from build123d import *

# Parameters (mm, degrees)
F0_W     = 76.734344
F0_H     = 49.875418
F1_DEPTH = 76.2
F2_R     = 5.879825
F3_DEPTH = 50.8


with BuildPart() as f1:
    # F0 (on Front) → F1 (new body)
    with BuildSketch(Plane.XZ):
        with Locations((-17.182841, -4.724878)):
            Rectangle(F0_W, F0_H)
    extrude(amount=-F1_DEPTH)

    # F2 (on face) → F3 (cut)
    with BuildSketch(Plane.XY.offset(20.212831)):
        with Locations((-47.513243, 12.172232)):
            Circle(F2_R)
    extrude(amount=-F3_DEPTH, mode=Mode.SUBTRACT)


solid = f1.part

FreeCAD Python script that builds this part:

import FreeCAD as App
import Part
import Sketcher
Q = App.Units.Quantity


def add_polygon(sketch, points):
    """Adds a closed chain of lines whose ends are joined by coincident constraints."""
    first, n = sketch.GeometryCount, len(points)
    for a, b in zip(points, points[1:] + points[:1]):
        sketch.addGeometry(Part.LineSegment(App.Vector(*a, 0), App.Vector(*b, 0)), False)
    for i in range(n):
        sketch.addConstraint(Sketcher.Constraint("Coincident", first + i, 2, first + (i + 1) % n, 1))

doc = App.newDocument("Part")
body = doc.addObject("PartDesign::Body", "Body")

# Sketch on XZ plane
sketch1 = doc.addObject("Sketcher::SketchObject", "Sketch")
body.addObject(sketch1)
sketch1.AttachmentSupport = (doc.XZ_Plane, [""])
sketch1.MapMode = "FlatFace"
add_polygon(sketch1, [(-56, 20), (-56, -30), (21, -30), (21, 20)])  # lines 0-3
sketch1.addConstraint([
    Sketcher.Constraint("Vertical", 0),
    Sketcher.Constraint("Horizontal", 1),
    Sketcher.Constraint("Vertical", 2),
    Sketcher.Constraint("Horizontal", 3),
    Sketcher.Constraint("DistanceX", 1, 1, 1, 2, Q("76.734344 mm")),
    Sketcher.Constraint("DistanceY", 0, 2, 0, 1, Q("49.875418 mm")),
    Sketcher.Constraint("DistanceX", -1, 1, 1, 2, Q("21.184331 mm")),
    Sketcher.Constraint("DistanceY", -1, 1, 2, 2, Q("20.212831 mm")),
])
pad1 = doc.addObject("PartDesign::Pad", "Pad")
body.addObject(pad1)
pad1.Profile = sketch1
pad1.Length = Q("3 in")
pad1.Reversed = True

# Sketch on XY plane
sketch2 = doc.addObject("Sketcher::SketchObject", "Sketch001")
body.addObject(sketch2)
sketch2.AttachmentSupport = (doc.XY_Plane, [""])
sketch2.MapMode = "FlatFace"
sketch2.AttachmentOffset = App.Placement(App.Vector(0, 0, 20.212831), App.Rotation())
sketch2.addGeometry(Part.Circle(App.Vector(-48, 12, 0), App.Vector(0, 0, 1), 6), False)
sketch2.addConstraint([
    Sketcher.Constraint("Diameter", 0, Q("11.75965 mm")),
    Sketcher.Constraint("DistanceX", 0, 3, -1, 1, Q("1.8706001 in")),
    Sketcher.Constraint("DistanceY", -1, 1, 0, 3, Q("12.172232 mm")),
])
pocket1 = doc.addObject("PartDesign::Pocket", "Pocket")
body.addObject(pocket1)
pocket1.Profile = sketch2
pocket1.Length = Q("2 in")

doc.recompute()
